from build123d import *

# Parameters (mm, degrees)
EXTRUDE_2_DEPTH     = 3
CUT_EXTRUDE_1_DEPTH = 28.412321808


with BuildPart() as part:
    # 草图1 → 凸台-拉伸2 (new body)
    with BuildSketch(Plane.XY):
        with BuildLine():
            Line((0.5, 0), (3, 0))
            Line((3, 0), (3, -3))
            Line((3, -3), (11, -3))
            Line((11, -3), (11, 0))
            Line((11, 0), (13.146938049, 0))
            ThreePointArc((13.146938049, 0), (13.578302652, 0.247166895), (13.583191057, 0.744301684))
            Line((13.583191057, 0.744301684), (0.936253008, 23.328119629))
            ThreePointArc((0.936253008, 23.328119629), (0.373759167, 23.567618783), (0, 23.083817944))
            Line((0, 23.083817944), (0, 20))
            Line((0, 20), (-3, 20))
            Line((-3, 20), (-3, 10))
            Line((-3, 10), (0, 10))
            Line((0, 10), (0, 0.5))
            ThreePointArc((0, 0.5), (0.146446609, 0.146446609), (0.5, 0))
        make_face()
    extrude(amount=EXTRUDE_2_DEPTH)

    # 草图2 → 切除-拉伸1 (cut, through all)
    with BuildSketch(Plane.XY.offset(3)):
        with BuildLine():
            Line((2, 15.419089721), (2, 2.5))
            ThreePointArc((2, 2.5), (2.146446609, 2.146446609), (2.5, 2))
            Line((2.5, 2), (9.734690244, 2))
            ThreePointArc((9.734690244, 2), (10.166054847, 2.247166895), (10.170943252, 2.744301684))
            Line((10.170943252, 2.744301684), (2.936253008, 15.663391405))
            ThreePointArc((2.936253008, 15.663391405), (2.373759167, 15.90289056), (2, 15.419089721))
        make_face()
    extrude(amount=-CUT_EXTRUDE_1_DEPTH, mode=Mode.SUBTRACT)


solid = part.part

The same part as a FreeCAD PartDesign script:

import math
import FreeCAD as App
import Part
import Sketcher
from FreeCAD import Vector

doc = App.newDocument("Part")
params = doc.addObject("Spreadsheet::Sheet", "Params")
for row, (alias, value) in enumerate([
    ("sketch1_radius", "0.5 mm"),
    ("sketch1_radius2", "0.5 mm"),
    ("sketch1_radius3", "0.5 mm"),
    ("sketch1_width", "8 mm"),
    ("sketch1_width2", "3 mm"),
    ("pad1_length", "3 mm"),
    ("sketch2_radius", "0.5 mm"),
], start=1):
    params.set(f"A{row}", alias)
    params.set(f"B{row}", "=" + value)
    params.setAlias(f"B{row}", alias)

body = doc.addObject("PartDesign::Body", "Body")

sketch1 = body.newObject("Sketcher::SketchObject", "Sketch")
sketch1.AttachmentSupport = (doc.getObject("XY_Plane"), [""])
sketch1.MapMode = "FlatFace"
sketch1.addGeometry([
    Part.LineSegment(Vector(0.5, 0, 0), Vector(3, 0, 0)),
    Part.LineSegment(Vector(3, 0, 0), Vector(3, -3, 0)),
    Part.LineSegment(Vector(3, -3, 0), Vector(11, -3, 0)),
    Part.LineSegment(Vector(11, -3, 0), Vector(11, 0, 0)),
    Part.LineSegment(Vector(11, 0, 0), Vector(13.146938, 0, 0)),
    Part.ArcOfCircle(Part.Circle(Vector(13.146938, 0.5, 0), Vector(0, 0, 1), 0.5), math.radians(-90), math.radians(29.248826)),
    Part.LineSegment(Vector(13.583191, 0.744302, 0), Vector(0.936253, 23.32812, 0)),
    Part.ArcOfCircle(Part.Circle(Vector(0.5, 23.083818, 0), Vector(0, 0, 1), 0.5), math.radians(29.248826), math.radians(180)),
    Part.LineSegment(Vector(0, 23.083818, 0), Vector(0, 20, 0)),
    Part.LineSegment(Vector(0, 20, 0), Vector(-3, 20, 0)),
    Part.LineSegment(Vector(-3, 20, 0), Vector(-3, 10, 0)),
    Part.LineSegment(Vector(-3, 10, 0), Vector(0, 10, 0)),
    Part.LineSegment(Vector(0, 10, 0), Vector(0, 0.5, 0)),
    Part.ArcOfCircle(Part.Circle(Vector(0.5, 0.5, 0), Vector(0, 0, 1), 0.5), math.radians(180), math.radians(270)),
], False)
sketch1.addConstraint([
    Sketcher.Constraint("Coincident", 0, 2, 1, 1),
    Sketcher.Constraint("Coincident", 1, 2, 2, 1),
    Sketcher.Constraint("Coincident", 2, 2, 3, 1),
    Sketcher.Constraint("Coincident", 3, 2, 4, 1),
    Sketcher.Constraint("Coincident", 4, 2, 5, 1),
    Sketcher.Constraint("Coincident", 5, 2, 6, 1),
    Sketcher.Constraint("Coincident", 6, 2, 7, 1),
    Sketcher.Constraint("Coincident", 7, 2, 8, 1),
    Sketcher.Constraint("Coincident", 8, 2, 9, 1),
    Sketcher.Constraint("Coincident", 9, 2, 10, 1),
    Sketcher.Constraint("Coincident", 10, 2, 11, 1),
    Sketcher.Constraint("Coincident", 11, 2, 12, 1),
    Sketcher.Constraint("Coincident", 12, 2, 13, 1),
    Sketcher.Constraint("Coincident", 13, 2, 0, 1),
    Sketcher.Constraint("Horizontal", 0),
    Sketcher.Constraint("Vertical", 1),
    Sketcher.Constraint("Horizontal", 2),
    Sketcher.Constraint("Vertical", 3),
    Sketcher.Constraint("Horizontal", 4),
    Sketcher.Constraint("Vertical", 8),
    Sketcher.Constraint("Horizontal", 9),
    Sketcher.Constraint("Vertical", 10),
    Sketcher.Constraint("Horizontal", 11),
    Sketcher.Constraint("Vertical", 12),
    Sketcher.Constraint("PointOnObject", 0, 2, -1),
    Sketcher.Constraint("PointOnObject", 3, 2, -1),
    Sketcher.Constraint("PointOnObject", 7, 2, -2),
    Sketcher.Constraint("PointOnObject", 11, 2, -2),
    Sketcher.Constraint("Radius", 5, 0.5),
    Sketcher.Constraint("Radius", 7, 0.5),
    Sketcher.Constraint("Radius", 13, 0.5),
    Sketcher.Constraint("DistanceX", 2, 1, 2, 2, 8.0),
    Sketcher.Constraint("DistanceX", 9, 2, 9, 1, 3.0),
    Sketcher.Constraint("DistanceY", 1, 2, 1, 1, 3.0),
    Sketcher.Constraint("DistanceY", 10, 2, 10, 1, 10.0),
    Sketcher.Constraint("DistanceX", 0, 1, 0, 2, 2.5),
    Sketcher.Constraint("DistanceY", 12, 2, 12, 1, 9.5),
    Sketcher.Constraint("DistanceX", -1, 1, 0, 2, 3.0),
    Sketcher.Constraint("DistanceY", -1, 1, 8, 2, 20.0),
    Sketcher.Constraint("DistanceX", 4, 1, 4, 2, 2.146938),
    Sketcher.Constraint("DistanceY", -1, 1, 5, 2, 0.744302),
    Sketcher.Constraint("DistanceY", 7, 3, 6, 2, 0.244302),
    Sketcher.Constraint("DistanceY", 7, 2, 6, 2, 0.244302),
    Sketcher.Constraint("DistanceY", 8, 2, 8, 1, 3.083818),
    Sketcher.Constraint("DistanceX", -1, 1, 5, 3, 13.146938),
])
sketch1.setExpression("Constraints[28]", "Params.sketch1_radius")
sketch1.setExpression("Constraints[29]", "Params.sketch1_radius2")
sketch1.setExpression("Constraints[30]", "Params.sketch1_radius3")
sketch1.setExpression("Constraints[31]", "Params.sketch1_width")
sketch1.setExpression("Constraints[32]", "Params.sketch1_width2")
pad1 = body.newObject("PartDesign::Pad", "Pad")
pad1.Profile = sketch1
pad1.setExpression("Length", "Params.pad1_length")

sketch2 = body.newObject("Sketcher::SketchObject", "Sketch001")
sketch2.AttachmentSupport = (doc.getObject("XY_Plane"), [""])
sketch2.MapMode = "FlatFace"
sketch2.AttachmentOffset = App.Placement(Vector(0, 0, 3), App.Rotation())
sketch2.addGeometry([
    Part.LineSegment(Vector(2, 15.41909, 0), Vector(2, 2.5, 0)),
    Part.ArcOfCircle(Part.Circle(Vector(2.5, 2.5, 0), Vector(0, 0, 1), 0.5), math.radians(180), math.radians(270)),
    Part.LineSegment(Vector(2.5, 2, 0), Vector(9.73469, 2, 0)),
    Part.ArcOfCircle(Part.Circle(Vector(9.73469, 2.5, 0), Vector(0, 0, 1), 0.5), math.radians(-90), math.radians(29.248826)),
    Part.LineSegment(Vector(10.170943, 2.744302, 0), Vector(2.936253, 15.663391, 0)),
    Part.ArcOfCircle(Part.Circle(Vector(2.5, 15.41909, 0), Vector(0, 0, 1), 0.5), math.radians(29.248826), math.radians(180)),
], False)
sketch2.addConstraint([
    Sketcher.Constraint("Tangent", 0, 2, 1, 1),
    Sketcher.Constraint("Tangent", 1, 2, 2, 1),
    Sketcher.Constraint("Tangent", 2, 2, 3, 1),
    Sketcher.Constraint("Tangent", 3, 2, 4, 1),
    Sketcher.Constraint("Tangent", 4, 2, 5, 1),
    Sketcher.Constraint("Tangent", 5, 2, 0, 1),
    Sketcher.Constraint("Vertical", 0),
    Sketcher.Constraint("Horizontal", 2),
    Sketcher.Constraint("Equal", 1, 3),
    Sketcher.Constraint("Equal", 3, 5),
    Sketcher.Constraint("Radius", 1, 0.5),
    Sketcher.Constraint("DistanceX", -1, 1, 0, 2, 2.0),
    Sketcher.Constraint("DistanceY", -1, 1, 1, 2, 2.0),
    Sketcher.Constraint("DistanceX", 2, 1, 2, 2, 7.23469),
    Sketcher.Constraint("DistanceY", 0, 2, 0, 1, 12.91909),
])
sketch2.setExpression("Constraints[10]", "Params.sketch2_radius")
pocket1 = body.newObject("PartDesign::Pocket", "Pocket")
pocket1.Profile = sketch2
pocket1.Type = "ThroughAll"

doc.recompute()
